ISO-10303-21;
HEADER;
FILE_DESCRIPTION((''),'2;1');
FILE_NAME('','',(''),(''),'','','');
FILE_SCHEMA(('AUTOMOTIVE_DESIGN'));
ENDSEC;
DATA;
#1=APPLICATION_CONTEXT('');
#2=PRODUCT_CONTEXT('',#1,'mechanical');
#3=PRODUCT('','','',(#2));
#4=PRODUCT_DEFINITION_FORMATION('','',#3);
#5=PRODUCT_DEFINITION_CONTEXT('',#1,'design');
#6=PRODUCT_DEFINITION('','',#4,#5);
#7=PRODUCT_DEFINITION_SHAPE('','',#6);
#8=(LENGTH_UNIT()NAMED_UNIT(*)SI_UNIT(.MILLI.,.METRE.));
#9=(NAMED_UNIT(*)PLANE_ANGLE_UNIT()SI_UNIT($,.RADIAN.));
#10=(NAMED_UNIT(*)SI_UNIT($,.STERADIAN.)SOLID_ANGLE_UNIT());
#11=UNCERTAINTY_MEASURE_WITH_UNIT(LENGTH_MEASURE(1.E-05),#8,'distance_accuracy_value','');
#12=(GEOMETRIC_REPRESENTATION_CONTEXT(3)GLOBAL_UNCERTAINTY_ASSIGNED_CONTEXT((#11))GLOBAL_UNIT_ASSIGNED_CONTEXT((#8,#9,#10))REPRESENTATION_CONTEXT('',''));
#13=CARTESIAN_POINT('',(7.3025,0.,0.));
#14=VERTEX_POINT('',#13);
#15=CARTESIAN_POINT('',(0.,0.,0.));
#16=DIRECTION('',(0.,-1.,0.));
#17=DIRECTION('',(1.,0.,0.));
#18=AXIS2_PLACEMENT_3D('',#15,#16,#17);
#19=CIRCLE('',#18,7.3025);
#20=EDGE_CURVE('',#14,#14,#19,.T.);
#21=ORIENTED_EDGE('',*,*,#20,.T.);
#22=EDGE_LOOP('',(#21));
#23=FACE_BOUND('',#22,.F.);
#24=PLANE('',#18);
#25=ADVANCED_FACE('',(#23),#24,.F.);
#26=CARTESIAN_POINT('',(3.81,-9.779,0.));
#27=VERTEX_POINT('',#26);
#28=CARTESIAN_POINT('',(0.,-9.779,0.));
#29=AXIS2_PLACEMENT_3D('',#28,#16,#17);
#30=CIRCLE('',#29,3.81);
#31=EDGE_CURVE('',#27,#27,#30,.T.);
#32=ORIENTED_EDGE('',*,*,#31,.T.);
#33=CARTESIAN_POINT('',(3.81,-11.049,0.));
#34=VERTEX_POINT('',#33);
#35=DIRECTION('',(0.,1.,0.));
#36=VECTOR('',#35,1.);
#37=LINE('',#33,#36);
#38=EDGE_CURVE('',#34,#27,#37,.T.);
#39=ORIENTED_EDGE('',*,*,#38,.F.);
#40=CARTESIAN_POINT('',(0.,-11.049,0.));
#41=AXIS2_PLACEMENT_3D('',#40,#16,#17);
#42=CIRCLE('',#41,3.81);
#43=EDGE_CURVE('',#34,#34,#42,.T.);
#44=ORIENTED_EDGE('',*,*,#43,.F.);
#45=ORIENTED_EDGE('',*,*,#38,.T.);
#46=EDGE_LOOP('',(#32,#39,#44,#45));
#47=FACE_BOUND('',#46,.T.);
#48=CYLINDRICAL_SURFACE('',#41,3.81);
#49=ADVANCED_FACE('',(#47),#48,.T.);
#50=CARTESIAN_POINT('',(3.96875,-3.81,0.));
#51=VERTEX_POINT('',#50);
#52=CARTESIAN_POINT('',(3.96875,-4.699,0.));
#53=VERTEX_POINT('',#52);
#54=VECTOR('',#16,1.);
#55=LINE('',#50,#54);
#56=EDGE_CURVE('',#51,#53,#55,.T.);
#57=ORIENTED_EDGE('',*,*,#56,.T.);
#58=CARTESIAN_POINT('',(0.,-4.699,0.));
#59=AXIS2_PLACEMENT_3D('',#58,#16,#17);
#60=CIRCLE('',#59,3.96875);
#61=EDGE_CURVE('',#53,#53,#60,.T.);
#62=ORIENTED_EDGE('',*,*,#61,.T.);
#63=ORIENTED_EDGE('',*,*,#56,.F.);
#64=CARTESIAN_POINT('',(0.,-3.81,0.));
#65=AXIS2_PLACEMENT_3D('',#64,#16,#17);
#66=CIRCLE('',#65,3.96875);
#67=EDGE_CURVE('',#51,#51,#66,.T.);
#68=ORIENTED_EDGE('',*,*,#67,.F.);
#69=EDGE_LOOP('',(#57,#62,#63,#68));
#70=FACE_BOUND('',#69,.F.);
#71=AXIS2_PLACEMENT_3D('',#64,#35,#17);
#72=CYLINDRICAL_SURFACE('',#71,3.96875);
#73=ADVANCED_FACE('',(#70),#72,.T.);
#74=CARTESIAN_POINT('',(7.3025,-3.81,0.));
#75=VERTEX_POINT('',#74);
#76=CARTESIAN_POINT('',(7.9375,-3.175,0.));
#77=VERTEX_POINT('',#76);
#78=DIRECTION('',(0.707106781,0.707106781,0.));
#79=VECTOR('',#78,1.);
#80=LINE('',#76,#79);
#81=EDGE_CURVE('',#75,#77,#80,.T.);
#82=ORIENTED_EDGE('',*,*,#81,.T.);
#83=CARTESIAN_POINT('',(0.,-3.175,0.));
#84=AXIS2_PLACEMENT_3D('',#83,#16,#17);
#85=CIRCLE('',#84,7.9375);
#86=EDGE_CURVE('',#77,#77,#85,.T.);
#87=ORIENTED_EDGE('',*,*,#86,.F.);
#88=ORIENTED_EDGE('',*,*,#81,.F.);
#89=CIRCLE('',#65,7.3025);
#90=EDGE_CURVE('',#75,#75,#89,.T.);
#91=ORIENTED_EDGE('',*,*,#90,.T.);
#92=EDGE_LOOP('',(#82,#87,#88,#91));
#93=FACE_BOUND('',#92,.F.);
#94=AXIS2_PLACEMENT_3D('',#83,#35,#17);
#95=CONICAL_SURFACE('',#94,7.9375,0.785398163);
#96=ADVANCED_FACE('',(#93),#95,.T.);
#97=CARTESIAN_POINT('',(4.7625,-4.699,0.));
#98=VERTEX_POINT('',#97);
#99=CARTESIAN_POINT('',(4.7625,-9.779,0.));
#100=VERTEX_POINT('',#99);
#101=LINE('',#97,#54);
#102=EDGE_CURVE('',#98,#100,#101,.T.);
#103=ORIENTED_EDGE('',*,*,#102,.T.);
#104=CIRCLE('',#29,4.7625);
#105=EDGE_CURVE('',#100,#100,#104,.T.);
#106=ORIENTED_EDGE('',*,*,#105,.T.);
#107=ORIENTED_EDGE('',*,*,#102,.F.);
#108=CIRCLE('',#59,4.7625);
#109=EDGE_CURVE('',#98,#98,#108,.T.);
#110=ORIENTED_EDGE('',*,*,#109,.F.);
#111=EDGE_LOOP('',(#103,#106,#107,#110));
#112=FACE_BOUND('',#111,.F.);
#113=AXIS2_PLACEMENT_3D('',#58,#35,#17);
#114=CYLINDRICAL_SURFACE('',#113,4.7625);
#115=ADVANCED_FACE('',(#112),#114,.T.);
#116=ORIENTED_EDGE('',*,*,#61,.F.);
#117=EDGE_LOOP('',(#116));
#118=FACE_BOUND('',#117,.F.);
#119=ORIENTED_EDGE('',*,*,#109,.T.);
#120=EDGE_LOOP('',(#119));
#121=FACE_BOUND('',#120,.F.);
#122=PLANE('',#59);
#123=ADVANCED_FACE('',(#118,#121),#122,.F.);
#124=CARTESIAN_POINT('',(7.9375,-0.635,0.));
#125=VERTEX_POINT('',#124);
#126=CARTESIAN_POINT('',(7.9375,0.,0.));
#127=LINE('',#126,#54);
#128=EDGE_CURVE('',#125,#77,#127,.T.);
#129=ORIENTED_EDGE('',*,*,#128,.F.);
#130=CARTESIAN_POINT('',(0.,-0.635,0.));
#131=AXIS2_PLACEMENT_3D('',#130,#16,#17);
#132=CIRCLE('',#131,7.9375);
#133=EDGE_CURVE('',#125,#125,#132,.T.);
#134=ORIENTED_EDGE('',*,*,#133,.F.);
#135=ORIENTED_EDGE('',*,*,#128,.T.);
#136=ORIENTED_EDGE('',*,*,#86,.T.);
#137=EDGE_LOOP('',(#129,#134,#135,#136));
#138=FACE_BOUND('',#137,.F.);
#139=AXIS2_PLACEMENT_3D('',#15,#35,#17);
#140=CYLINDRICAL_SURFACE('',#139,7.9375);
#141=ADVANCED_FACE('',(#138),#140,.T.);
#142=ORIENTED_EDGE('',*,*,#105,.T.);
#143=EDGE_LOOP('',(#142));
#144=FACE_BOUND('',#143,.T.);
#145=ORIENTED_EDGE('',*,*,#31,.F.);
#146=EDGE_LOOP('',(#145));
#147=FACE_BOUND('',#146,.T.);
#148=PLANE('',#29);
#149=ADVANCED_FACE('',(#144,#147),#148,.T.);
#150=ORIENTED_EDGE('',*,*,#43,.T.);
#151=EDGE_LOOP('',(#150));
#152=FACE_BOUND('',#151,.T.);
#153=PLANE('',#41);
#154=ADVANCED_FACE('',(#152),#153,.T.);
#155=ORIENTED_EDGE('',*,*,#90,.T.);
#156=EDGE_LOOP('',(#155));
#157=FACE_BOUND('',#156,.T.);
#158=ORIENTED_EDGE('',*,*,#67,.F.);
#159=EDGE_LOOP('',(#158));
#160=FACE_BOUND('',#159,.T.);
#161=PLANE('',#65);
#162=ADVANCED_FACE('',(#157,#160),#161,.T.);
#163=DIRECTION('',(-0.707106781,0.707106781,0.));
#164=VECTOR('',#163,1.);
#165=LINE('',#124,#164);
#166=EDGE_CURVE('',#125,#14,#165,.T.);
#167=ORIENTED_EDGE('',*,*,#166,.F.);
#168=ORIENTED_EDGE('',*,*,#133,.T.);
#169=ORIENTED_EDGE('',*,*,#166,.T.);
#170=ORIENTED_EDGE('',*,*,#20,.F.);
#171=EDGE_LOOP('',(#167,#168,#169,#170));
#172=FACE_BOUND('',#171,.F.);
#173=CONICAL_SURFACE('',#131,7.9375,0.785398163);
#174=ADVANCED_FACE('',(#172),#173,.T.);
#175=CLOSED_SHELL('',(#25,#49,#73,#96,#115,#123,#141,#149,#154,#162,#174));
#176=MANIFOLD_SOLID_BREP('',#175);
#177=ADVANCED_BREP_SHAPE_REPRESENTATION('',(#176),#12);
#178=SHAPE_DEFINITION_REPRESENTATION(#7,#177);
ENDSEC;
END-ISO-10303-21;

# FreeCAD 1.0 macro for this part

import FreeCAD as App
import Part
import Sketcher
from FreeCAD import Vector
Q = App.Units.Quantity


def edges_at(feature, points):
    """Names of the edges that pass closest to the given points."""
    edges = feature.Shape.Edges
    near = lambda p: min(range(len(edges)), key=lambda i: edges[i].distToShape(Part.Vertex(*p))[0])
    return sorted({f"Edge{near(p) + 1}" for p in points})

doc = App.newDocument("Part")
params = doc.addObject("Spreadsheet::Sheet", "Params")
for row, (alias, value) in enumerate([
    ("sketch1_diameter", "0.625 in"),
    ("pad1_length", "0.15 in"),
    ("sketch2_diameter", "0.3125 in"),
    ("pad2_length", "0.035 in"),
    ("sketch3_diameter", "0.375 in"),
    ("pad3_length", "0.25 in"),
    ("sketch4_diameter", "0.3 in"),
    ("sketch4_diameter2", "0.375 in"),
    ("pocket1_length", "0.05 in"),
    ("chamfer_size", "0.025 in"),
    ("sketch5_diameter", "0.375 in"),
    ("pad4_length", "0.25 in"),
], start=1):
    params.set(f"A{row}", alias)
    params.set(f"B{row}", "=" + value)
    params.setAlias(f"B{row}", alias)

body = doc.addObject("PartDesign::Body", "Body")

# Sketch on XZ plane
sketch1 = body.newObject("Sketcher::SketchObject", "Sketch")
sketch1.AttachmentSupport = (doc.getObject("XZ_Plane"), [""])
sketch1.MapMode = "FlatFace"
sketch1.addGeometry(Part.Circle(Vector(0, 0, 0), Vector(0, 0, 1), 8), False)
sketch1.addConstraint(Sketcher.Constraint("Coincident", 0, 3, -1, 1))
sketch1.addConstraint(Sketcher.Constraint("Diameter", 0, Q("0.625 in")))
sketch1.setExpression("Constraints[1]", "Params.sketch1_diameter")
pad1 = body.newObject("PartDesign::Pad", "Pad")
pad1.Profile = sketch1
pad1.setExpression("Length", "Params.pad1_length")

# Sketch on XZ plane
sketch2 = body.newObject("Sketcher::SketchObject", "Sketch001")
sketch2.AttachmentSupport = (doc.getObject("XZ_Plane"), [""])
sketch2.MapMode = "FlatFace"
sketch2.AttachmentOffset = App.Placement(Vector(0, 0, 0.15 * 25.4), App.Rotation())
sketch2.addGeometry(Part.Circle(Vector(0, 0, 0), Vector(0, 0, 1), 4), False)
sketch2.addConstraint(Sketcher.Constraint("Coincident", 0, 3, -1, 1))
sketch2.addConstraint(Sketcher.Constraint("Diameter", 0, Q("0.3125 in")))
sketch2.setExpression("Constraints[1]", "Params.sketch2_diameter")
pad2 = body.newObject("PartDesign::Pad", "Pad001")
pad2.Profile = sketch2
pad2.setExpression("Length", "Params.pad2_length")

# Sketch on XZ plane
sketch3 = body.newObject("Sketcher::SketchObject", "Sketch002")
sketch3.AttachmentSupport = (doc.getObject("XZ_Plane"), [""])
sketch3.MapMode = "FlatFace"
sketch3.AttachmentOffset = App.Placement(Vector(0, 0, 0.185 * 25.4), App.Rotation())
sketch3.addGeometry(Part.Circle(Vector(0, 0, 0), Vector(0, 0, 1), 4.8), False)
sketch3.addConstraint(Sketcher.Constraint("Coincident", 0, 3, -1, 1))
sketch3.addConstraint(Sketcher.Constraint("Diameter", 0, Q("0.375 in")))
sketch3.setExpression("Constraints[1]", "Params.sketch3_diameter")
pad3 = body.newObject("PartDesign::Pad", "Pad002")
pad3.Profile = sketch3
pad3.setExpression("Length", "Params.pad3_length")

# Sketch on XZ plane
sketch4 = body.newObject("Sketcher::SketchObject", "Sketch003")
sketch4.AttachmentSupport = (doc.getObject("XZ_Plane"), [""])
sketch4.MapMode = "FlatFace"
sketch4.AttachmentOffset = App.Placement(Vector(0, 0, 0.435 * 25.4), App.Rotation())
sketch4.addGeometry(Part.Circle(Vector(0, 0, 0), Vector(0, 0, 1), 4.8), False)
sketch4.addGeometry(Part.Circle(Vector(0, 0, 0), Vector(0, 0, 1), 3.8), False)
sketch4.addConstraint(Sketcher.Constraint("Coincident", 0, 3, -1, 1))
sketch4.addConstraint(Sketcher.Constraint("Coincident", 1, 3, -1, 1))
sketch4.addConstraint(Sketcher.Constraint("Diameter", 1, Q("0.3 in")))
sketch4.addConstraint(Sketcher.Constraint("Diameter", 0, Q("0.375 in")))
sketch4.setExpression("Constraints[2]", "Params.sketch4_diameter")
sketch4.setExpression("Constraints[3]", "Params.sketch4_diameter2")
pocket1 = body.newObject("PartDesign::Pocket", "Pocket")
pocket1.Profile = sketch4
pocket1.setExpression("Length", "Params.pocket1_length")
doc.recompute()

chamfer = body.newObject("PartDesign::Chamfer", "Chamfer")
chamfer.Base = (pocket1, edges_at(pocket1, [(-7.938, -3.81, 0), (-7.938, 0, 0)]))
chamfer.setExpression("Size", "Params.chamfer_size")
body2 = doc.addObject("PartDesign::Body", "Body001")

# Sketch on XZ plane
sketch5 = body2.newObject("Sketcher::SketchObject", "Sketch004")
sketch5.AttachmentSupport = (doc.getObject("XZ_Plane001"), [""])
sketch5.MapMode = "FlatFace"
sketch5.AttachmentOffset = App.Placement(Vector(0, 0, 0.15 * 25.4), App.Rotation())
sketch5.addGeometry(Part.Circle(Vector(0, 0, 0), Vector(0, 0, 1), 4.8), False)
sketch5.addConstraint(Sketcher.Constraint("Coincident", 0, 3, -1, 1))
sketch5.addConstraint(Sketcher.Constraint("Diameter", 0, Q("0.375 in")))
sketch5.setExpression("Constraints[1]", "Params.sketch5_diameter")
pad4 = body2.newObject("PartDesign::Pad", "Pad003")
pad4.Profile = sketch5
pad4.setExpression("Length", "Params.pad4_length")
body2.Visibility = False

doc.recompute()
